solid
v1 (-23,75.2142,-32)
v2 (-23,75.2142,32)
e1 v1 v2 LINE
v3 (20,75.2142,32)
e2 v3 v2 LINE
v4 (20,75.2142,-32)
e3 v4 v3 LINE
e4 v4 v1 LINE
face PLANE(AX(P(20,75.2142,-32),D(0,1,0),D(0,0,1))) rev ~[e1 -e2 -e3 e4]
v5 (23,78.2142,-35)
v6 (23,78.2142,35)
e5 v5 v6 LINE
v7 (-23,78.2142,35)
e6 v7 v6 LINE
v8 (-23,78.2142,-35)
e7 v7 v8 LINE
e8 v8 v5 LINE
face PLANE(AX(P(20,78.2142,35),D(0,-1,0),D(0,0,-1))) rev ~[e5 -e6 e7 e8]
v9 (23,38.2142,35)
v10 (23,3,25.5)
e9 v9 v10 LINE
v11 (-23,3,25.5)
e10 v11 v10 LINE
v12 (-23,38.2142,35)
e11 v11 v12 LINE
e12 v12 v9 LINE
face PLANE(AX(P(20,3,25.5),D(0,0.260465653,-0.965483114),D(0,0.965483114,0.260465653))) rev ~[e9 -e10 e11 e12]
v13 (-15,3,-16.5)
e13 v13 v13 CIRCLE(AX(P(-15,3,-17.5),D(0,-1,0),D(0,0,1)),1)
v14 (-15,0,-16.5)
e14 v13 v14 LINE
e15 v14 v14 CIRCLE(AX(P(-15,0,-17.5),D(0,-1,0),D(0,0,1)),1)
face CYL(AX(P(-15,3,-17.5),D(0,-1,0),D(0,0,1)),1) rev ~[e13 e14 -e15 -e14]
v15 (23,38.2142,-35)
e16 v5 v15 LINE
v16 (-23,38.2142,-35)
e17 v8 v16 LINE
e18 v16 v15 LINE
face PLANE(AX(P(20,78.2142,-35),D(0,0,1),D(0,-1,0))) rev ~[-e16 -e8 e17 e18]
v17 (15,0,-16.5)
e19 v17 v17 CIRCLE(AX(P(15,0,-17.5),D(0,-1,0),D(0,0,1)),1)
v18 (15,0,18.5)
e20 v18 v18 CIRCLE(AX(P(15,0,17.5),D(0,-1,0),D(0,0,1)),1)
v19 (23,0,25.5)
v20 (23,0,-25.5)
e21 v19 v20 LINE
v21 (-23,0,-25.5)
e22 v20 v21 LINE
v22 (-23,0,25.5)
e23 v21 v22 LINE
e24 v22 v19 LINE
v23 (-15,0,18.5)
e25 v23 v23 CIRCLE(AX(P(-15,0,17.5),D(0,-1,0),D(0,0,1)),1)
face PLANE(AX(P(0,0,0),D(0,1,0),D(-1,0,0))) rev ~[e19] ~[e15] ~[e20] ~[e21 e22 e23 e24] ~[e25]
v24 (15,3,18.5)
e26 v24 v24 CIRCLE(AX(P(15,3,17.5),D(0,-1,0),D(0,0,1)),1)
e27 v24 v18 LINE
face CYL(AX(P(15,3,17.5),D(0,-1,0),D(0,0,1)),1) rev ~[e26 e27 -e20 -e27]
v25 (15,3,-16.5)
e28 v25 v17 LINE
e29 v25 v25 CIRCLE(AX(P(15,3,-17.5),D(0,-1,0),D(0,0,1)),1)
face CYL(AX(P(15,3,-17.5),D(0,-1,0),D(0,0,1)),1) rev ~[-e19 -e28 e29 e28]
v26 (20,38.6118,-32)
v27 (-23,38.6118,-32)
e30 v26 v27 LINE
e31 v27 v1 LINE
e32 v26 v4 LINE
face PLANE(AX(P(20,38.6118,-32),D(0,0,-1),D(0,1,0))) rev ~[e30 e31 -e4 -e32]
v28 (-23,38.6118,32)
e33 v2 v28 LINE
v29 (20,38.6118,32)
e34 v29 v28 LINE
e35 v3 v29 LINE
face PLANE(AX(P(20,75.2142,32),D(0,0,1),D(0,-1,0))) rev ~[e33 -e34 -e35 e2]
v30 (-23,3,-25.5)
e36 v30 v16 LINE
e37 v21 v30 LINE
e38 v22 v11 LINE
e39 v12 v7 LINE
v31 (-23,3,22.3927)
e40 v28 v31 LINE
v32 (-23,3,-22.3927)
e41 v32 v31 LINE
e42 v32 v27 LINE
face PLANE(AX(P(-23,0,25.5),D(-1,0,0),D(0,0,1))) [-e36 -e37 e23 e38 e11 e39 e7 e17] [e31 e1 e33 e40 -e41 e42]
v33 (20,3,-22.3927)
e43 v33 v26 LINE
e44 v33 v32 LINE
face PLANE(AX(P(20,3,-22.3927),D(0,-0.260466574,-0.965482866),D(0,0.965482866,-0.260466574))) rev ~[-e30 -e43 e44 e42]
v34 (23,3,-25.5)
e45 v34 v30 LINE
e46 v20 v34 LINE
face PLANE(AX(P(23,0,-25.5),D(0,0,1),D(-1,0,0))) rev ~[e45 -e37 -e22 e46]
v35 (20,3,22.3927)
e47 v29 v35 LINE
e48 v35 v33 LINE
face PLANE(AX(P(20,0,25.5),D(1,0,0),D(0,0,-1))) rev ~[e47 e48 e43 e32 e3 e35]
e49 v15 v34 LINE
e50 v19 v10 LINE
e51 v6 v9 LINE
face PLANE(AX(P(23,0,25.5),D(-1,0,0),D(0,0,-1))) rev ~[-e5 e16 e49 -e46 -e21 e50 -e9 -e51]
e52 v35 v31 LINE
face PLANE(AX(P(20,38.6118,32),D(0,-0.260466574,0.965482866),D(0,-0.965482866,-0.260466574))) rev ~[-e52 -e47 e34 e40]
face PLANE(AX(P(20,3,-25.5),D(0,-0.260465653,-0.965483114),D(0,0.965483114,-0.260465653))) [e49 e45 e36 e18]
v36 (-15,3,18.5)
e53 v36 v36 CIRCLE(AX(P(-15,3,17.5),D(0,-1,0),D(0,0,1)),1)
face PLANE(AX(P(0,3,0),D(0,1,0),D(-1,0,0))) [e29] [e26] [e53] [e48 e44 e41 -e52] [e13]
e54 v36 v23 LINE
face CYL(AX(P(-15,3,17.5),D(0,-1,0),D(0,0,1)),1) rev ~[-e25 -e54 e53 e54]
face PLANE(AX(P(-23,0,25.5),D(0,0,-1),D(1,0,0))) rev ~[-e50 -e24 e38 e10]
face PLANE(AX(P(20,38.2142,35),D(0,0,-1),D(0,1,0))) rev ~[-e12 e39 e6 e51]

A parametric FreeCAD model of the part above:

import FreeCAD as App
import Part
import Sketcher

V = App.Vector
Q = App.Units.Quantity


def add_polygon(sketch, points):
    """Adds a closed chain of lines whose ends are joined by coincident constraints."""
    first, n = sketch.GeometryCount, len(points)
    for a, b in zip(points, points[1:] + points[:1]):
        sketch.addGeometry(Part.LineSegment(App.Vector(*a, 0), App.Vector(*b, 0)), False)
    for i in range(n):
        sketch.addConstraint(Sketcher.Constraint("Coincident", first + i, 2, first + (i + 1) % n, 1))

doc = App.newDocument("Part")
body = doc.addObject("PartDesign::Body", "Body")

sketch1 = doc.addObject("Sketcher::SketchObject", "Sketch")
body.addObject(sketch1)
sketch1.AttachmentSupport = (doc.XZ_Plane, [""])
sketch1.MapMode = "FlatFace"
add_polygon(sketch1, [(-23, -26), (-23, 26), (23, 26), (23, -26)])
sketch1.addConstraint([
    Sketcher.Constraint("Vertical", 0),
    Sketcher.Constraint("Horizontal", 1),
    Sketcher.Constraint("Vertical", 2),
    Sketcher.Constraint("Horizontal", 3),
    Sketcher.Constraint("Symmetric", 0, 2, 2, 2, -1, 1),
    Sketcher.Constraint("DistanceX", 1, 1, 1, 2, Q("46 mm")),
    Sketcher.Constraint("DistanceY", 0, 1, 0, 2, Q("51 mm")),
])
pad1 = doc.addObject("PartDesign::Pad", "Pad")
body.addObject(pad1)
pad1.Profile = sketch1
pad1.Length = 3
pad1.Reversed = True

sketch2 = doc.addObject("Sketcher::SketchObject", "Sketch001")
body.addObject(sketch2)
sketch2.AttachmentSupport = (doc.XZ_Plane, [""])
sketch2.MapMode = "FlatFace"
sketch2.AttachmentOffset = App.Placement(V(0, 0, -3), App.Rotation())
sketch2.addGeometry([
    Part.Circle(V(-15, 17.5, 0), V(0, 0, 1), 1),
    Part.Circle(V(-15, -17.5, 0), V(0, 0, 1), 1),
    Part.Circle(V(15, 17.5, 0), V(0, 0, 1), 1),
    Part.Circle(V(15, -17.5, 0), V(0, 0, 1), 1),
], False)
sketch2.addConstraint([
    Sketcher.Constraint("Equal", 0, 1),
    Sketcher.Constraint("Equal", 1, 2),
    Sketcher.Constraint("Equal", 2, 3),
    Sketcher.Constraint("Symmetric", 1, 3, 2, 3, -1, 1),
    Sketcher.Constraint("Symmetric", 0, 3, 3, 3, -1, 1),
    Sketcher.Constraint("Symmetric", 0, 3, 2, 3, -2),
    Sketcher.Constraint("Diameter", 0, Q("2 mm")),
    Sketcher.Constraint("DistanceX", 0, 3, -1, 1, Q("15 mm")),
    Sketcher.Constraint("DistanceY", 1, 3, 0, 3, Q("35 mm")),
])
doc.recompute()
hole = doc.addObject("PartDesign::Hole", "Hole")
body.addObject(hole)
hole.Profile = sketch2
hole.ThreadType = "None"
hole.Diameter = 2
hole.DepthType = "ThroughAll"
hole.Reversed = True

sketch3 = doc.addObject("Sketcher::SketchObject", "Sketch002")
body.addObject(sketch3)
sketch3.AttachmentSupport = (doc.YZ_Plane, [""])
sketch3.MapMode = "FlatFace"
sketch3.AttachmentOffset = App.Placement(V(0, 0, 23), App.Rotation())
add_polygon(sketch3, [(3, 26), (3, -26), (38, -35), (78, -35), (78, 35), (38, 35)])
sketch3.addConstraint([
    Sketcher.Constraint("Vertical", 0),
    Sketcher.Constraint("Horizontal", 2),
    Sketcher.Constraint("Vertical", 3),
    Sketcher.Constraint("Horizontal", 4),
    Sketcher.Constraint("Symmetric", 1, 2, 4, 2, -1),
    Sketcher.Constraint("Equal", 1, 5),
    Sketcher.Constraint("DistanceX", 2, 1, 2, 2, Q("40 mm")),
    Sketcher.Constraint("DistanceY", 3, 1, 3, 2, Q("70 mm")),
    Sketcher.Constraint("DistanceY", 0, 2, 0, 1, Q("51 mm")),
    Sketcher.Constraint("DistanceX", -1, 1, 0, 2, Q("3 mm")),
    Sketcher.Constraint("Distance", 1, Q("36.4731 mm")),
])
pad2 = doc.addObject("PartDesign::Pad", "Pad001")
body.addObject(pad2)
pad2.Profile = sketch3
pad2.Length = 3
pad2.Reversed = True

sketch4 = doc.addObject("Sketcher::SketchObject", "Sketch003")
body.addObject(sketch4)
sketch4.AttachmentSupport = (doc.YZ_Plane, [""])
sketch4.MapMode = "FlatFace"
sketch4.AttachmentOffset = App.Placement(V(0, 0, 20), App.Rotation())
add_polygon(sketch4, [(38.2, -35), (3, -25.5), (3, -22.4), (38.6, -32), (75.2, -32), (75.2, 32), (38.6, 32), (3, 22.4), (3, 25.5), (38.2, 35), (78.2, 35), (78.2, -35)])
sketch4.addConstraint([
    Sketcher.Constraint("Vertical", 1),
    Sketcher.Constraint("Horizontal", 3),
    Sketcher.Constraint("Vertical", 4),
    Sketcher.Constraint("Horizontal", 5),
    Sketcher.Constraint("Vertical", 7),
    Sketcher.Constraint("Horizontal", 9),
    Sketcher.Constraint("Vertical", 10),
    Sketcher.Constraint("Horizontal", 11),
    Sketcher.Constraint("Symmetric", 2, 2, 5, 2, -1),
    Sketcher.Constraint("Symmetric", 1, 2, 6, 2, -1),
    Sketcher.Constraint("Symmetric", 8, 2, 11, 2, -1),
    Sketcher.Constraint("Parallel", 0, 2),
    Sketcher.Constraint("Parallel", 6, 8),
    Sketcher.Constraint("DistanceX", -1, 1, 0, 2, Q("3 mm")),
    Sketcher.Constraint("DistanceY", 5, 2, 8, 2, Q("3 mm")),
    Sketcher.Constraint("DistanceX", 4, 2, 9, 2, Q("3 mm")),
    Sketcher.Constraint("DistanceX", 9, 1, 9, 2, Q("40 mm")),
    Sketcher.Constraint("DistanceY", 4, 1, 4, 2, Q("64 mm")),
    Sketcher.Constraint("DistanceY", 0, 2, 7, 2, Q("51 mm")),
    Sketcher.Constraint("Distance", 2, Q("36.885 mm")),
    Sketcher.Constraint("DistanceX", 3, 1, 3, 2, Q("36.6024 mm")),
])
pad3 = doc.addObject("PartDesign::Pad", "Pad002")
body.addObject(pad3)
pad3.Profile = sketch4
pad3.Length = 43
pad3.Reversed = True

doc.recompute()
